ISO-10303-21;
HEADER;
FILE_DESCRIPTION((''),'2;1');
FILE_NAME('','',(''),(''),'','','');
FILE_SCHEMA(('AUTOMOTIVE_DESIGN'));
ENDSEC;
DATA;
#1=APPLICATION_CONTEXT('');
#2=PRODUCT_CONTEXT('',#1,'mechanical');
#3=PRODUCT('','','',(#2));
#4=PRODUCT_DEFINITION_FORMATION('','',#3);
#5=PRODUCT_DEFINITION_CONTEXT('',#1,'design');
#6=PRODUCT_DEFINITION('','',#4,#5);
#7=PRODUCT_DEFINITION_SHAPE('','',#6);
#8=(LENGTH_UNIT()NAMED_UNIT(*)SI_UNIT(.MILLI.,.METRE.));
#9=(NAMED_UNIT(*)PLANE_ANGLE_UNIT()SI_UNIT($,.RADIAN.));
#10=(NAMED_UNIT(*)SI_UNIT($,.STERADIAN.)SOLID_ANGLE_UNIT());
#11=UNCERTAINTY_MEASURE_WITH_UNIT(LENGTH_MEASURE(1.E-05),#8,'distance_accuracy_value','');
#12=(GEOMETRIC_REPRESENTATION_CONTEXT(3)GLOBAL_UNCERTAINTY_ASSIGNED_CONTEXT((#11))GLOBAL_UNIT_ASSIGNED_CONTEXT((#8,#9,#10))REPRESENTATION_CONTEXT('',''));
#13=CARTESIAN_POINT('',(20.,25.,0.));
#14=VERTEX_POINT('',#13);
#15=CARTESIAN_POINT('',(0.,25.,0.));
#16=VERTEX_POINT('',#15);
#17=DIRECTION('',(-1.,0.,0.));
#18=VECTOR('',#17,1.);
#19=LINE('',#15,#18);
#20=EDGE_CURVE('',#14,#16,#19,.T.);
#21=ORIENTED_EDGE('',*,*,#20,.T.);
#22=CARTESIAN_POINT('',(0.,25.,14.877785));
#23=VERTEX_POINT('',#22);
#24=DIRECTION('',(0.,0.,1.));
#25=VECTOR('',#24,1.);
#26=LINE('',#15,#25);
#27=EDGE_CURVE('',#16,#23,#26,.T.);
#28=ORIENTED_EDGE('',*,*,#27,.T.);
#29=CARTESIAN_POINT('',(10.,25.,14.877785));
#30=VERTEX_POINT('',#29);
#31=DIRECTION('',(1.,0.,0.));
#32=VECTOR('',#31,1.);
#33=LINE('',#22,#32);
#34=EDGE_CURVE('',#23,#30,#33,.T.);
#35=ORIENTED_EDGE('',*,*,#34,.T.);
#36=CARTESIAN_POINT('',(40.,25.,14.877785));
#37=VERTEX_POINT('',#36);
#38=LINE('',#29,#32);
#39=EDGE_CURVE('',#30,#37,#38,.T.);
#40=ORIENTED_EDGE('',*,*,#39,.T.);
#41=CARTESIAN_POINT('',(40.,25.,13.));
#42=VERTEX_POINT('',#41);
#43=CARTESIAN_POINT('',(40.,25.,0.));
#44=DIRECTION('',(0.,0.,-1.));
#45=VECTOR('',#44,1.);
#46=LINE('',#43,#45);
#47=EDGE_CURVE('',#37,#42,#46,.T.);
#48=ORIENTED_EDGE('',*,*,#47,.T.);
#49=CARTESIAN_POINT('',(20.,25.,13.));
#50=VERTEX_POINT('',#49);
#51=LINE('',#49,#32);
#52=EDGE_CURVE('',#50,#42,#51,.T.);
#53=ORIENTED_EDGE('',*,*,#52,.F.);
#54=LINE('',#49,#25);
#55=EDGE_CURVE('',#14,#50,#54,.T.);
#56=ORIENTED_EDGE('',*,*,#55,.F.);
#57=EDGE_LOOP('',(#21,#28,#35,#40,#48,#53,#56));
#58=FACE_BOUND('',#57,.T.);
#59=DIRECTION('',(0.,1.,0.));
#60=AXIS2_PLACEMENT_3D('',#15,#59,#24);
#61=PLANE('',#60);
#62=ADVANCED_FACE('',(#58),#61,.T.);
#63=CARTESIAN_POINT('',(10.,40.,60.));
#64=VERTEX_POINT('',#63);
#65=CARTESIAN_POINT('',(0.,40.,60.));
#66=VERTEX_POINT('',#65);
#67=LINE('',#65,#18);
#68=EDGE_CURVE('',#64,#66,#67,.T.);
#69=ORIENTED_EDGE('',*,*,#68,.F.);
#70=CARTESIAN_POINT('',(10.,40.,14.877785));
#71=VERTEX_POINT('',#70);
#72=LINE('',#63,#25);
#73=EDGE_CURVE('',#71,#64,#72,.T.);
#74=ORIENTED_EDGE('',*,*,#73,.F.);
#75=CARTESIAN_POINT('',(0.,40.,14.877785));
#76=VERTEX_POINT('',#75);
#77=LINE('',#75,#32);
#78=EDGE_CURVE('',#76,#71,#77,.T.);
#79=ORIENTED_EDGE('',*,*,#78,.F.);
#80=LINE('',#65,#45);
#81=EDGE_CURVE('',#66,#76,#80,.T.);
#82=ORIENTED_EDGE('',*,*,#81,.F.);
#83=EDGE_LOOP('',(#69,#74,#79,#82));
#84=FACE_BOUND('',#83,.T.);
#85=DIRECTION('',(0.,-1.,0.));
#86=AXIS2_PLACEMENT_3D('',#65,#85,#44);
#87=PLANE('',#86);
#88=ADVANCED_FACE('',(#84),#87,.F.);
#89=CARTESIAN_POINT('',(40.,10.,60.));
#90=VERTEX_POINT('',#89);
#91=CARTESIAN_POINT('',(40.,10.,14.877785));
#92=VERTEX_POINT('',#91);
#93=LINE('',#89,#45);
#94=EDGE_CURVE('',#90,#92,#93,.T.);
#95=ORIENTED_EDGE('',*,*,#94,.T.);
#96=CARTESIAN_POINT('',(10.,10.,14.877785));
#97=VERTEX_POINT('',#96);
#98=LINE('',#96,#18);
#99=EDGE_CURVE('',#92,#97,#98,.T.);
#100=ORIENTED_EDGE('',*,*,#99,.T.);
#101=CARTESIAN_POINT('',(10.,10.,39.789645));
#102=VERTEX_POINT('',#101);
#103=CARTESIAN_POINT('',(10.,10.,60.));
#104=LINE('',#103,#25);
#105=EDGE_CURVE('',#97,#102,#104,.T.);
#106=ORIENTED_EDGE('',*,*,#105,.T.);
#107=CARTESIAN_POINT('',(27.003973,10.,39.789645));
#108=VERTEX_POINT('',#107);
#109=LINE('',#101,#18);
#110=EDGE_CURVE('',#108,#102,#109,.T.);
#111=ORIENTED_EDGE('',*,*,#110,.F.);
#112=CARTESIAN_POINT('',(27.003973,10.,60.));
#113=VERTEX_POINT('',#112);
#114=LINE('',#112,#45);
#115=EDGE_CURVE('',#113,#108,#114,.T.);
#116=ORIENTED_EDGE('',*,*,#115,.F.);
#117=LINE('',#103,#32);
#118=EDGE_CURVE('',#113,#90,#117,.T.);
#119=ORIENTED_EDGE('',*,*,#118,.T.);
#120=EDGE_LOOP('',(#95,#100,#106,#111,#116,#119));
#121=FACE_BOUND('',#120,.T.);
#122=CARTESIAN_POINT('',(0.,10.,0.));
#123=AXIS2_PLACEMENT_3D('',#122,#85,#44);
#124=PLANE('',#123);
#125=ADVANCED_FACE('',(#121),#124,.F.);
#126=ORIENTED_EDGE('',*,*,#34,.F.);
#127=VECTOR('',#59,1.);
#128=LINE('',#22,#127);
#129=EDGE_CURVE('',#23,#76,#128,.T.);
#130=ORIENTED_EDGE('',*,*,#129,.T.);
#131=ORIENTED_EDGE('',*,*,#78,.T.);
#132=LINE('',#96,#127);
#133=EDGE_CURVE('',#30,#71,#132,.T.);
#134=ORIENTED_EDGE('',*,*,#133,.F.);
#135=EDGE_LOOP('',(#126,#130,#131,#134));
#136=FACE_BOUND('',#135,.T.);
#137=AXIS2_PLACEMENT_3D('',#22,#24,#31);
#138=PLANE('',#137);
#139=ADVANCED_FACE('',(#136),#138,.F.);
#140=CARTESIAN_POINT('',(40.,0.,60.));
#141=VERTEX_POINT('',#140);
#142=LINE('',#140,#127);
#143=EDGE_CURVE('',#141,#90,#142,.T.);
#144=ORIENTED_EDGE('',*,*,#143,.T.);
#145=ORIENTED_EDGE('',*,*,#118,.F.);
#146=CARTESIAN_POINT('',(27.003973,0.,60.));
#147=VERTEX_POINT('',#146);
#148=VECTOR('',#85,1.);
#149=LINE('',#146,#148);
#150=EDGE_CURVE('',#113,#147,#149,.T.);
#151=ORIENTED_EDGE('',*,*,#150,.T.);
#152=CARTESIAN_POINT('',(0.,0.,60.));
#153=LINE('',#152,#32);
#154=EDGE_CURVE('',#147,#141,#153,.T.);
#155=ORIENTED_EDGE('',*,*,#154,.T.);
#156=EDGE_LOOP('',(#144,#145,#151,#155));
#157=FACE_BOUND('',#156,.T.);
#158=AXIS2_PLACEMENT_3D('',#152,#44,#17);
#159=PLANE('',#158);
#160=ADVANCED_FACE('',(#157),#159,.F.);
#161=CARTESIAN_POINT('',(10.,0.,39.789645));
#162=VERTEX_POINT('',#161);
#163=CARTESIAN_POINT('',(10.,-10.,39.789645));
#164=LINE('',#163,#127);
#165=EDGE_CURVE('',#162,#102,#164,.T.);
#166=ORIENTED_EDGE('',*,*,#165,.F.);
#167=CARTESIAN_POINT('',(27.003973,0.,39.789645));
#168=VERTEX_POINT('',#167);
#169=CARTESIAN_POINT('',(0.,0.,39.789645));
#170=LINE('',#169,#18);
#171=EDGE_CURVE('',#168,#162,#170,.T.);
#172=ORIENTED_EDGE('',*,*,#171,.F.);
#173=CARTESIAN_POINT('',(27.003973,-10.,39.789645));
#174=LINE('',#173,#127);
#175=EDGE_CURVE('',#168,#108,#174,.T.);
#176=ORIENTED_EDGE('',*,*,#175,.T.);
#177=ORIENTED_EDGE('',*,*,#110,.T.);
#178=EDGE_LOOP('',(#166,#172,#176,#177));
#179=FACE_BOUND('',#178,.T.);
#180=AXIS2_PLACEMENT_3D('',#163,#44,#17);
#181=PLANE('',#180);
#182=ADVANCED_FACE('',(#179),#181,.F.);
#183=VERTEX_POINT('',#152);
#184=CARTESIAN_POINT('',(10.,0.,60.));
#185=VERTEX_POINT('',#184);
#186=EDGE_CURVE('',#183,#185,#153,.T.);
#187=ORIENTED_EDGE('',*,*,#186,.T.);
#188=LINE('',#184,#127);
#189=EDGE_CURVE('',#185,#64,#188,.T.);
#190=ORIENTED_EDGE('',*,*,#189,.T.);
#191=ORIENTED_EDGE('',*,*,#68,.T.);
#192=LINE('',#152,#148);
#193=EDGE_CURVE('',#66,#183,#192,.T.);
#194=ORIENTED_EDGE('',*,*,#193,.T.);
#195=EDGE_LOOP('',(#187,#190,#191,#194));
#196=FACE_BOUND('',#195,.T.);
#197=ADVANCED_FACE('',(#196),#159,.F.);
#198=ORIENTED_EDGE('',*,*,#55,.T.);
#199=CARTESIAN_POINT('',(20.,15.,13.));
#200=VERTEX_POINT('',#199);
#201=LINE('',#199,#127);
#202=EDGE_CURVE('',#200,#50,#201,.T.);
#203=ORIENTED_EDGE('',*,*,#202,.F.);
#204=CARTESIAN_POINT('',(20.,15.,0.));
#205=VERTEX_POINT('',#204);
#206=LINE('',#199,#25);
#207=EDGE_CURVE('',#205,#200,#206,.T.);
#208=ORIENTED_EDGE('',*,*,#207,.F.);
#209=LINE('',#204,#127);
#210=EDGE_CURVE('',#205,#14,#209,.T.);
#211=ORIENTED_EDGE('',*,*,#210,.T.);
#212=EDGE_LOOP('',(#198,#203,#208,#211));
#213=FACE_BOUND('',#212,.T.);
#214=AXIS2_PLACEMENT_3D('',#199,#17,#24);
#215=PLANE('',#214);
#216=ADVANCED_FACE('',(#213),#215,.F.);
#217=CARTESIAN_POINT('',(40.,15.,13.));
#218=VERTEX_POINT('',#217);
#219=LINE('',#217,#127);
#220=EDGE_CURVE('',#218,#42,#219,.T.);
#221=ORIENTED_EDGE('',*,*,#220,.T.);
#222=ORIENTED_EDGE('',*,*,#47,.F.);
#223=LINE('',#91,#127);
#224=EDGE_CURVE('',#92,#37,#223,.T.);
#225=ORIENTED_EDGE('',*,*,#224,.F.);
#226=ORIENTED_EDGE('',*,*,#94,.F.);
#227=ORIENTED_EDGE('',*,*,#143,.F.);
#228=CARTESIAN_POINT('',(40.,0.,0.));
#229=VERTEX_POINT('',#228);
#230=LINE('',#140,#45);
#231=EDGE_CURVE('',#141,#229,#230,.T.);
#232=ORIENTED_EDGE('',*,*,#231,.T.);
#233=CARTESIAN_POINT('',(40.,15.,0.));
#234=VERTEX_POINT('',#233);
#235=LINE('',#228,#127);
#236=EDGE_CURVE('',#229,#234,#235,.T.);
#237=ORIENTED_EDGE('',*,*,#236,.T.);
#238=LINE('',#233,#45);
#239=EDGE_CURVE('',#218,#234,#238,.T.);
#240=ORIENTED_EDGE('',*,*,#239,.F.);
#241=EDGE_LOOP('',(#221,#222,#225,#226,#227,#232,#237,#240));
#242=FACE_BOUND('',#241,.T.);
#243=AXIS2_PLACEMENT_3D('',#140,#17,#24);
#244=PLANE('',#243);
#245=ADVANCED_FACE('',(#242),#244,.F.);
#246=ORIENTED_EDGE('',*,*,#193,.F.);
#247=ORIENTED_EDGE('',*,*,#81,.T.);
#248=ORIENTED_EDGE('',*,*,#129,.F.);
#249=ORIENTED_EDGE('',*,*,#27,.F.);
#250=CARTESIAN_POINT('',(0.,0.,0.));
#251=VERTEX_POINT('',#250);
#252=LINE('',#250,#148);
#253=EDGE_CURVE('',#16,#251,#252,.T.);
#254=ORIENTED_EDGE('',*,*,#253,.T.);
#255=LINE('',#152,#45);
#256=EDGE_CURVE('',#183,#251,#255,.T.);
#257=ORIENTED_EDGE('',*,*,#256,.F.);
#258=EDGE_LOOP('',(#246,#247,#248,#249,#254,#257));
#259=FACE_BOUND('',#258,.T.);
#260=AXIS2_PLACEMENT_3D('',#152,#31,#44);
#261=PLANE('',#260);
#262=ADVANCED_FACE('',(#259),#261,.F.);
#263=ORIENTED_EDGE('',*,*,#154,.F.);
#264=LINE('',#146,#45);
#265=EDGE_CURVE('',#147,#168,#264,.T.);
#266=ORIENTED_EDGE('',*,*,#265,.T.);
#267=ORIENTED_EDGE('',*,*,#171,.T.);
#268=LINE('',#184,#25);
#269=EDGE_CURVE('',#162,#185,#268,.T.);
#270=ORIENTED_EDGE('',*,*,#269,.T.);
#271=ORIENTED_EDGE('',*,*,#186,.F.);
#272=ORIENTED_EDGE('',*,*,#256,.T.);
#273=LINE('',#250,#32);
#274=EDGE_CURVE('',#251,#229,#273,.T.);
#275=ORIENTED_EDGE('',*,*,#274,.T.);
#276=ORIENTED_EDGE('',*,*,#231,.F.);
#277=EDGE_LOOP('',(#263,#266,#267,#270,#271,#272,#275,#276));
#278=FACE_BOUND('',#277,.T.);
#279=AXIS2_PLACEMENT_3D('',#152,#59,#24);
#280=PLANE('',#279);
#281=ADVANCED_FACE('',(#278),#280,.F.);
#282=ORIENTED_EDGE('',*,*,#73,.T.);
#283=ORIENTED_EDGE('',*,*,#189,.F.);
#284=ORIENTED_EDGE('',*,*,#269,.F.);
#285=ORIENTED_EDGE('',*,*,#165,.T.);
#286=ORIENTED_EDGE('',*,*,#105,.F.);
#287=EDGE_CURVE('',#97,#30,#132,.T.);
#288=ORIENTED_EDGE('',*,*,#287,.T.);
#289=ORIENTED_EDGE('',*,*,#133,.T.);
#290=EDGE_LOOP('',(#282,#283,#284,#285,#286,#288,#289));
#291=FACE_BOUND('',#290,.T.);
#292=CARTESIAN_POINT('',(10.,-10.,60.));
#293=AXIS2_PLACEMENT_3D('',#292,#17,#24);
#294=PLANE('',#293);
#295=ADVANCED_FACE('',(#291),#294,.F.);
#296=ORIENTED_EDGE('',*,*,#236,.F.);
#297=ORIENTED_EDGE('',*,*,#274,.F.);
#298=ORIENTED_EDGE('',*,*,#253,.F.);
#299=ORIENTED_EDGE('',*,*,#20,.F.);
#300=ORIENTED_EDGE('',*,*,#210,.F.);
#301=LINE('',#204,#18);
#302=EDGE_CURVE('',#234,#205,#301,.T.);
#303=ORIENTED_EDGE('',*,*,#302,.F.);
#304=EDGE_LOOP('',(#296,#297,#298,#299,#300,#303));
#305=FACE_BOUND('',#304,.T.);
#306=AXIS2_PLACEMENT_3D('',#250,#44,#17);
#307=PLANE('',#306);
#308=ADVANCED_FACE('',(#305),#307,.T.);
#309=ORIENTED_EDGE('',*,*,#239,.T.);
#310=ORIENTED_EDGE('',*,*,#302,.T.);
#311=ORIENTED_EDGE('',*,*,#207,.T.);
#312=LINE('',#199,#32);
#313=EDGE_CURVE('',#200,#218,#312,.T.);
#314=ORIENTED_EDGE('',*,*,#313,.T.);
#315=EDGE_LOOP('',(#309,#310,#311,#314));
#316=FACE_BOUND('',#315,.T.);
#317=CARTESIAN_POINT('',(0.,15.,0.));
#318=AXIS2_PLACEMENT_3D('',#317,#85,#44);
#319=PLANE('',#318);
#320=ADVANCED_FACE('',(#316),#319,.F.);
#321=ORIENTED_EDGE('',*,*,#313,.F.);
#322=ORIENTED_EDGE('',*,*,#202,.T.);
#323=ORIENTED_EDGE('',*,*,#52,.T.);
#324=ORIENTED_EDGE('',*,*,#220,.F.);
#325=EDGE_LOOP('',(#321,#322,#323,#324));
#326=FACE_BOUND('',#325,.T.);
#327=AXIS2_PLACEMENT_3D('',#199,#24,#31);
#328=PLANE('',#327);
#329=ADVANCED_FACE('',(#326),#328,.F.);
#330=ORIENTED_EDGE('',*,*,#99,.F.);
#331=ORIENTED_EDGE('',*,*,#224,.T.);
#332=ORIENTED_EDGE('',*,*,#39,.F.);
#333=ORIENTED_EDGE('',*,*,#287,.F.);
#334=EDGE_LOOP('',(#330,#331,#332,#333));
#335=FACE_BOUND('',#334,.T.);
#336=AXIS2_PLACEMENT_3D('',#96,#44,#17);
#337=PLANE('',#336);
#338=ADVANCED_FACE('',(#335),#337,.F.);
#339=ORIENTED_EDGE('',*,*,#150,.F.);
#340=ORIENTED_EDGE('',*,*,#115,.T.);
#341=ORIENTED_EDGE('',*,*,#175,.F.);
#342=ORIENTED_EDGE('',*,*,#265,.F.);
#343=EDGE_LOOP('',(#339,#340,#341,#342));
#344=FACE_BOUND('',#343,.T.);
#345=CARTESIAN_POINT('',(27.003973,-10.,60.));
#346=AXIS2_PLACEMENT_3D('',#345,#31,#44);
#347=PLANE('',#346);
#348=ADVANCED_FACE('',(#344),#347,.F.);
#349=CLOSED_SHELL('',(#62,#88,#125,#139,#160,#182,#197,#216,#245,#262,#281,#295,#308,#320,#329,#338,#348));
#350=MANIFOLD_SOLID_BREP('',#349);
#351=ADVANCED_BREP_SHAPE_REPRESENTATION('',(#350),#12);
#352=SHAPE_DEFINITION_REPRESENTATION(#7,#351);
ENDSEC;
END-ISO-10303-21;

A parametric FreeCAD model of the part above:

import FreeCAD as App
import Part
import Sketcher
from FreeCAD import Vector
Q = App.Units.Quantity

doc = App.newDocument("Part")
body = doc.addObject("PartDesign::Body", "Body")

# Sketch on XY plane
sketch1 = doc.addObject("Sketcher::SketchObject", "Sketch")
body.addObject(sketch1)
sketch1.AttachmentSupport = (doc.XY_Plane, [""])
sketch1.MapMode = "FlatFace"
sketch1.addGeometry([
    Part.LineSegment(Vector(0, 40, 0), Vector(0, 0, 0)),
    Part.LineSegment(Vector(0, 0, 0), Vector(40, 0, 0)),
    Part.LineSegment(Vector(40, 0, 0), Vector(40, 40, 0)),
    Part.LineSegment(Vector(40, 40, 0), Vector(0, 40, 0)),
], False)
sketch1.addConstraint([
    Sketcher.Constraint("Coincident", 0, 2, 1, 1),
    Sketcher.Constraint("Coincident", 1, 2, 2, 1),
    Sketcher.Constraint("Coincident", 2, 2, 3, 1),
    Sketcher.Constraint("Coincident", 3, 2, 0, 1),
    Sketcher.Constraint("Vertical", 0),
    Sketcher.Constraint("Horizontal", 1),
    Sketcher.Constraint("Vertical", 2),
    Sketcher.Constraint("Horizontal", 3),
    Sketcher.Constraint("Coincident", 0, 2, -1, 1),
    Sketcher.Constraint("Equal", 3, 0),
    Sketcher.Constraint("DistanceX", 1, 1, 1, 2, Q("40 mm")),
])
pad1 = doc.addObject("PartDesign::Pad", "Pad")
body.addObject(pad1)
pad1.Profile = sketch1
pad1.Length = 60

# Sketch on XZ plane
sketch2 = doc.addObject("Sketcher::SketchObject", "Sketch001")
body.addObject(sketch2)
sketch2.AttachmentSupport = (doc.XZ_Plane, [""])
sketch2.MapMode = "FlatFace"
sketch2.AttachmentOffset = App.Placement(Vector(0, 0, -40), App.Rotation())
sketch2.addGeometry([
    Part.LineSegment(Vector(10, 40, 0), Vector(10, 60, 0)),
    Part.LineSegment(Vector(10, 60, 0), Vector(27, 60, 0)),
    Part.LineSegment(Vector(27, 60, 0), Vector(27, 40, 0)),
    Part.LineSegment(Vector(27, 40, 0), Vector(10, 40, 0)),
], False)
sketch2.addConstraint([
    Sketcher.Constraint("Coincident", 0, 2, 1, 1),
    Sketcher.Constraint("Coincident", 1, 2, 2, 1),
    Sketcher.Constraint("Coincident", 2, 2, 3, 1),
    Sketcher.Constraint("Coincident", 3, 2, 0, 1),
    Sketcher.Constraint("Vertical", 0),
    Sketcher.Constraint("Horizontal", 1),
    Sketcher.Constraint("Vertical", 2),
    Sketcher.Constraint("Horizontal", 3),
    Sketcher.Constraint("DistanceX", -1, 1, 0, 2, Q("10 mm")),
    Sketcher.Constraint("DistanceY", -1, 1, 0, 2, Q("60 mm")),
    Sketcher.Constraint("DistanceX", 1, 1, 1, 2, Q("17.003973 mm")),
    Sketcher.Constraint("DistanceY", 0, 1, 0, 2, Q("20.210355 mm")),
])
pocket1 = doc.addObject("PartDesign::Pocket", "Pocket")
body.addObject(pocket1)
pocket1.Profile = sketch2
pocket1.Length = 50
pocket1.Reversed = True

# Sketch on XZ plane
sketch3 = doc.addObject("Sketcher::SketchObject", "Sketch002")
body.addObject(sketch3)
sketch3.AttachmentSupport = (doc.XZ_Plane, [""])
sketch3.MapMode = "FlatFace"
sketch3.AttachmentOffset = App.Placement(Vector(0, 0, -40), App.Rotation())
sketch3.addGeometry([
    Part.LineSegment(Vector(10, 15, 0), Vector(10, 60, 0)),
    Part.LineSegment(Vector(10, 60, 0), Vector(40, 60, 0)),
    Part.LineSegment(Vector(40, 60, 0), Vector(40, 15, 0)),
    Part.LineSegment(Vector(40, 15, 0), Vector(10, 15, 0)),
], False)
sketch3.addConstraint([
    Sketcher.Constraint("Coincident", 0, 2, 1, 1),
    Sketcher.Constraint("Coincident", 1, 2, 2, 1),
    Sketcher.Constraint("Coincident", 2, 2, 3, 1),
    Sketcher.Constraint("Coincident", 3, 2, 0, 1),
    Sketcher.Constraint("Vertical", 0),
    Sketcher.Constraint("Horizontal", 1),
    Sketcher.Constraint("Vertical", 2),
    Sketcher.Constraint("Horizontal", 3),
    Sketcher.Constraint("DistanceX", 1, 1, 1, 2, Q("30 mm")),
    Sketcher.Constraint("DistanceX", -1, 1, 0, 2, Q("10 mm")),
    Sketcher.Constraint("DistanceY", -1, 1, 0, 2, Q("60 mm")),
    Sketcher.Constraint("DistanceY", 0, 1, 0, 2, Q("45.122215 mm")),
])
pocket2 = doc.addObject("PartDesign::Pocket", "Pocket001")
body.addObject(pocket2)
pocket2.Profile = sketch3
pocket2.Length = 30
pocket2.Reversed = True

# Sketch on XZ plane
sketch4 = doc.addObject("Sketcher::SketchObject", "Sketch003")
body.addObject(sketch4)
sketch4.AttachmentSupport = (doc.XZ_Plane, [""])
sketch4.MapMode = "FlatFace"
sketch4.AttachmentOffset = App.Placement(Vector(0, 0, -40), App.Rotation())
sketch4.addGeometry([
    Part.LineSegment(Vector(0, 0, 0), Vector(0, 15, 0)),
    Part.LineSegment(Vector(0, 15, 0), Vector(40, 15, 0)),
    Part.LineSegment(Vector(40, 15, 0), Vector(40, 0, 0)),
    Part.LineSegment(Vector(40, 0, 0), Vector(0, 0, 0)),
], False)
sketch4.addConstraint([
    Sketcher.Constraint("Coincident", 0, 2, 1, 1),
    Sketcher.Constraint("Coincident", 1, 2, 2, 1),
    Sketcher.Constraint("Coincident", 2, 2, 3, 1),
    Sketcher.Constraint("Coincident", 3, 2, 0, 1),
    Sketcher.Constraint("Vertical", 0),
    Sketcher.Constraint("Horizontal", 1),
    Sketcher.Constraint("Vertical", 2),
    Sketcher.Constraint("Horizontal", 3),
    Sketcher.Constraint("Coincident", 3, 2, -1, 1),
    Sketcher.Constraint("DistanceX", 1, 1, 1, 2, Q("40 mm")),
    Sketcher.Constraint("DistanceY", 0, 1, 0, 2, Q("14.877785 mm")),
])
pocket3 = doc.addObject("PartDesign::Pocket", "Pocket002")
body.addObject(pocket3)
pocket3.Profile = sketch4
pocket3.Length = 15
pocket3.Reversed = True

# Sketch on XZ plane
sketch5 = doc.addObject("Sketcher::SketchObject", "Sketch004")
body.addObject(sketch5)
sketch5.AttachmentSupport = (doc.XZ_Plane, [""])
sketch5.MapMode = "FlatFace"
sketch5.AttachmentOffset = App.Placement(Vector(0, 0, -25), App.Rotation())
sketch5.addGeometry([
    Part.LineSegment(Vector(20, 0, 0), Vector(20, 13, 0)),
    Part.LineSegment(Vector(20, 13, 0), Vector(40, 13, 0)),
    Part.LineSegment(Vector(40, 13, 0), Vector(40, 0, 0)),
    Part.LineSegment(Vector(40, 0, 0), Vector(20, 0, 0)),
], False)
sketch5.addConstraint([
    Sketcher.Constraint("Coincident", 0, 2, 1, 1),
    Sketcher.Constraint("Coincident", 1, 2, 2, 1),
    Sketcher.Constraint("Coincident", 2, 2, 3, 1),
    Sketcher.Constraint("Coincident", 3, 2, 0, 1),
    Sketcher.Constraint("Vertical", 0),
    Sketcher.Constraint("Horizontal", 1),
    Sketcher.Constraint("Vertical", 2),
    Sketcher.Constraint("Horizontal", 3),
    Sketcher.Constraint("PointOnObject", 2, 2, -1),
    Sketcher.Constraint("DistanceX", 1, 1, 1, 2, Q("20 mm")),
    Sketcher.Constraint("DistanceY", 0, 1, 0, 2, Q("13 mm")),
    Sketcher.Constraint("DistanceX", -1, 1, 0, 2, Q("20 mm")),
])
pocket4 = doc.addObject("PartDesign::Pocket", "Pocket003")
body.addObject(pocket4)
pocket4.Profile = sketch5
pocket4.Length = 10
pocket4.Reversed = True

doc.recompute()
